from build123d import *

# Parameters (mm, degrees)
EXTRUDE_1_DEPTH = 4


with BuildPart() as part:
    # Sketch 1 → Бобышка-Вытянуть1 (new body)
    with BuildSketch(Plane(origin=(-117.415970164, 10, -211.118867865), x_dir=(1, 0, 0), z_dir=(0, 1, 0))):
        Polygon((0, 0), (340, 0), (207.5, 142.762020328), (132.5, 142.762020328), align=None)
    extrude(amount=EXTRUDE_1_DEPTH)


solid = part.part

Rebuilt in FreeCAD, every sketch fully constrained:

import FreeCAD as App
import Part
import Sketcher
from FreeCAD import Vector

doc = App.newDocument("Part")
body = doc.addObject("PartDesign::Body", "Body")

sketch1 = body.newObject("Sketcher::SketchObject", "Sketch")
sketch1.AttachmentSupport = (doc.getObject("XZ_Plane"), [""])
sketch1.MapMode = "FlatFace"
sketch1.AttachmentOffset = App.Placement(Vector(0, 0, -10), App.Rotation())
sketch1.addGeometry([
    Part.LineSegment(Vector(-117, -211, 0), Vector(223, -211, 0)),
    Part.LineSegment(Vector(223, -211, 0), Vector(90, -354, 0)),
    Part.LineSegment(Vector(90, -354, 0), Vector(15, -354, 0)),
    Part.LineSegment(Vector(15, -354, 0), Vector(-117, -211, 0)),
], False)
sketch1.addConstraint([
    Sketcher.Constraint("Coincident", 0, 2, 1, 1),
    Sketcher.Constraint("Coincident", 1, 2, 2, 1),
    Sketcher.Constraint("Coincident", 2, 2, 3, 1),
    Sketcher.Constraint("Coincident", 3, 2, 0, 1),
    Sketcher.Constraint("Horizontal", 0),
    Sketcher.Constraint("Horizontal", 2),
    Sketcher.Constraint("Equal", 1, 3),
    Sketcher.Constraint("DistanceX", 0, 1, 0, 2, 340.0),
    Sketcher.Constraint("DistanceX", 2, 2, 2, 1, 75.0),
    Sketcher.Constraint("DistanceX", -1, 1, 0, 2, 222.58403),
    Sketcher.Constraint("DistanceY", 1, 2, -1, 1, 353.880888),
    Sketcher.Constraint("DistanceY", 1, 2, 0, 2, 142.76202),
])
pad1 = body.newObject("PartDesign::Pad", "Pad")
pad1.Profile = sketch1
pad1.Length = 4
pad1.Reversed = True

doc.recompute()
